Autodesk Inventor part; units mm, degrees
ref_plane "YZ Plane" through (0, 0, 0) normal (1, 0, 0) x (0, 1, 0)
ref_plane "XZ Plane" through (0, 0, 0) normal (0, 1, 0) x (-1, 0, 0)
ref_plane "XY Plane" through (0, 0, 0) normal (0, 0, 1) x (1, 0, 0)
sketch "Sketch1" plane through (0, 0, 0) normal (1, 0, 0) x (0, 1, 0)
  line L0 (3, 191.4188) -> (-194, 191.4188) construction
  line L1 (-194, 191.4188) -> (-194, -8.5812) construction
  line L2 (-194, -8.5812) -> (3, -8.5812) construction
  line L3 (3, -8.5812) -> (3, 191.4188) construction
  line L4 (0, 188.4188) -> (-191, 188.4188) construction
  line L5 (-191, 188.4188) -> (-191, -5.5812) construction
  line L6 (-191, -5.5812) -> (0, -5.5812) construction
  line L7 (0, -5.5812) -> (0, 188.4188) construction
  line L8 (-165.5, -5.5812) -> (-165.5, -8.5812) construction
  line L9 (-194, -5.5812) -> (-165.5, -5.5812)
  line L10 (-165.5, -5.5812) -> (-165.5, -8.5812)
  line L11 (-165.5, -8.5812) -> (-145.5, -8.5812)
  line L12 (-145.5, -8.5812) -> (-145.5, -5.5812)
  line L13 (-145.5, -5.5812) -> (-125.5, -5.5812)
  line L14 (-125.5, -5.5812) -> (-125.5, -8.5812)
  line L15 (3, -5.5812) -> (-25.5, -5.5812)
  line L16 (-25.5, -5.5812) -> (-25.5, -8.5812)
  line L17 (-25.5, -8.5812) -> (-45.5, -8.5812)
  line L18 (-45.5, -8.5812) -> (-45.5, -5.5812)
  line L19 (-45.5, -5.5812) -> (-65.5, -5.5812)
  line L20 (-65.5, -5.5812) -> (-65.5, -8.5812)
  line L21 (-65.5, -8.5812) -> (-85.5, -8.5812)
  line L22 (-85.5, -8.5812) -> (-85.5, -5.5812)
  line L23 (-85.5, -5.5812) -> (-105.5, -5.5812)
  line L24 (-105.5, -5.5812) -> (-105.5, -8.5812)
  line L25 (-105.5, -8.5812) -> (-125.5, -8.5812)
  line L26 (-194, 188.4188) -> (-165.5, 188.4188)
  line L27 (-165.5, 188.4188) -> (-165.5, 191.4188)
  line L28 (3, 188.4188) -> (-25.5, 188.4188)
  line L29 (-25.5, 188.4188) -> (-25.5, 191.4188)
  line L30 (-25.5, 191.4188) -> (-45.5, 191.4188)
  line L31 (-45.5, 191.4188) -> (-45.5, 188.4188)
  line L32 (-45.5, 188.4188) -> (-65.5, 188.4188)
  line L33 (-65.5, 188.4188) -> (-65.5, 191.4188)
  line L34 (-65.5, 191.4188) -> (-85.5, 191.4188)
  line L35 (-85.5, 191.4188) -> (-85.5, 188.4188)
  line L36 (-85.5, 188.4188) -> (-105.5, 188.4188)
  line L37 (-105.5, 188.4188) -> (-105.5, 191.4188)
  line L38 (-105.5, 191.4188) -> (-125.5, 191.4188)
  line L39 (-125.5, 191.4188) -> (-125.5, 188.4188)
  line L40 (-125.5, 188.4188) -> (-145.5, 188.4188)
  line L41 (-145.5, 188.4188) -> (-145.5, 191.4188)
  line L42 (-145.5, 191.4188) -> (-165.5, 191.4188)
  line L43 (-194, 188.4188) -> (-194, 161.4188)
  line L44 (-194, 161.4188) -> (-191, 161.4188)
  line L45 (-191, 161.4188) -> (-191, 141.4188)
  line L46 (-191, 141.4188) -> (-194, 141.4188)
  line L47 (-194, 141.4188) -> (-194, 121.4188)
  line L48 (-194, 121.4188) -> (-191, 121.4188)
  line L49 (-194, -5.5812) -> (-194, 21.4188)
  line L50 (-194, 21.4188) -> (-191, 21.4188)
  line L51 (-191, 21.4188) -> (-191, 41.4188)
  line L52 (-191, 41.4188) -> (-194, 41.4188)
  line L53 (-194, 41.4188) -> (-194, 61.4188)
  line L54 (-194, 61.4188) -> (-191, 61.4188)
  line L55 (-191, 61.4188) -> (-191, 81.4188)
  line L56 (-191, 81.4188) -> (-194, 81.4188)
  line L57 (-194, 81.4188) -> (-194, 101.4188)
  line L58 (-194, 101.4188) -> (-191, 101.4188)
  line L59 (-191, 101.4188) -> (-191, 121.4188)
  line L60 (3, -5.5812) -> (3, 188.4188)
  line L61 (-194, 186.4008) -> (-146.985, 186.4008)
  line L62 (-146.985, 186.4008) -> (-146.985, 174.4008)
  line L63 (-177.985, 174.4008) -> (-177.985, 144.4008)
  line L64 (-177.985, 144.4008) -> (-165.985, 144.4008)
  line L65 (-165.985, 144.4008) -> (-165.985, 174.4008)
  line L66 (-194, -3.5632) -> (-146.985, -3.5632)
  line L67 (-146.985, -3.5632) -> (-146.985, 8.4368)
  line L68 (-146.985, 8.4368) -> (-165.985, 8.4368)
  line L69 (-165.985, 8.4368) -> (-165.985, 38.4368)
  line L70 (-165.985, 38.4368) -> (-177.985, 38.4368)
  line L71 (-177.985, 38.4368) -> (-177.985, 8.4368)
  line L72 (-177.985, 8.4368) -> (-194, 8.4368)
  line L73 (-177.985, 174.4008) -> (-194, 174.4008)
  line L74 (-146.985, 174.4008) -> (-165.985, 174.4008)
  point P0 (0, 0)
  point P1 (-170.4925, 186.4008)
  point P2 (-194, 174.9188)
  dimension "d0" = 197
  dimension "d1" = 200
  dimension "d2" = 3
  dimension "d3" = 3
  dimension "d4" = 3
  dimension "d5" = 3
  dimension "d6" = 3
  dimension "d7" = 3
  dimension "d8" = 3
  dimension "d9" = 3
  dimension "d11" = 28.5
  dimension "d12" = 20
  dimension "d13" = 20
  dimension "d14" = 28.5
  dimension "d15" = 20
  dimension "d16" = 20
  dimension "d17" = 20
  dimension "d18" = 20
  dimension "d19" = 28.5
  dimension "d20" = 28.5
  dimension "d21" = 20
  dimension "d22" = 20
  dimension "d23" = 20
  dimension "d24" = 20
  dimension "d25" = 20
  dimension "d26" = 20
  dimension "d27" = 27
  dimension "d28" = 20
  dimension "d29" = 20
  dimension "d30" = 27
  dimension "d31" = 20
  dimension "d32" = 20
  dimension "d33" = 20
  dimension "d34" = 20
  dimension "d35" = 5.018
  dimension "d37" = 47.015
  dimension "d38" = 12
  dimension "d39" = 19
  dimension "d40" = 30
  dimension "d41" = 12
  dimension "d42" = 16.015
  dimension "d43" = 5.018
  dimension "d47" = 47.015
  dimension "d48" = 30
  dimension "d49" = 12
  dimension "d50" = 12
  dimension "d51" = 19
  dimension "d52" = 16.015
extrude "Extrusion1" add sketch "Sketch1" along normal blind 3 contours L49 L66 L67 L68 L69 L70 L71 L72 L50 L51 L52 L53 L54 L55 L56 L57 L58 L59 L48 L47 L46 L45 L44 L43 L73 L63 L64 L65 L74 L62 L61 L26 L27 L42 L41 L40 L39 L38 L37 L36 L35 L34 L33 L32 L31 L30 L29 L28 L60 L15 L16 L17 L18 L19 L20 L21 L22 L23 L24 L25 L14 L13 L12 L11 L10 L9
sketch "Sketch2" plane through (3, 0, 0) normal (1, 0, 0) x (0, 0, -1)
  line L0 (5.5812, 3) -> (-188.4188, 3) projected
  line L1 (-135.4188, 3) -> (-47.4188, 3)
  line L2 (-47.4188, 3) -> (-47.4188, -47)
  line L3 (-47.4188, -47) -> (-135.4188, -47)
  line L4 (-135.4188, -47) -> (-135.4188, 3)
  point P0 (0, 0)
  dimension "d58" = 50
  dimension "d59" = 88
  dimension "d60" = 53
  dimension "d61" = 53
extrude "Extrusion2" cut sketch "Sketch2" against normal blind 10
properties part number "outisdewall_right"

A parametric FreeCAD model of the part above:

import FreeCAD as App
import Part
import Sketcher
from FreeCAD import Vector
Q = App.Units.Quantity

doc = App.newDocument("Part")
body = doc.addObject("PartDesign::Body", "Body")

sketch1 = doc.addObject("Sketcher::SketchObject", "Sketch")
body.addObject(sketch1)
sketch1.AttachmentSupport = (doc.YZ_Plane, [""])
sketch1.MapMode = "FlatFace"
sketch1.addGeometry([
    Part.LineSegment(Vector(-194, -3.6, 0), Vector(-194, -5.6, 0)),
    Part.LineSegment(Vector(-194, -5.6, 0), Vector(-165.5, -5.6, 0)),
    Part.LineSegment(Vector(-165.5, -5.6, 0), Vector(-165.5, -8.6, 0)),
    Part.LineSegment(Vector(-165.5, -8.6, 0), Vector(-145.5, -8.6, 0)),
    Part.LineSegment(Vector(-145.5, -8.6, 0), Vector(-145.5, -5.6, 0)),
    Part.LineSegment(Vector(-145.5, -5.6, 0), Vector(-125.5, -5.6, 0)),
    Part.LineSegment(Vector(-125.5, -5.6, 0), Vector(-125.5, -8.6, 0)),
    Part.LineSegment(Vector(-125.5, -8.6, 0), Vector(-105.5, -8.6, 0)),
    Part.LineSegment(Vector(-105.5, -8.6, 0), Vector(-105.5, -5.6, 0)),
    Part.LineSegment(Vector(-105.5, -5.6, 0), Vector(-85.5, -5.6, 0)),
    Part.LineSegment(Vector(-85.5, -5.6, 0), Vector(-85.5, -8.6, 0)),
    Part.LineSegment(Vector(-85.5, -8.6, 0), Vector(-65.5, -8.6, 0)),
    Part.LineSegment(Vector(-65.5, -8.6, 0), Vector(-65.5, -5.6, 0)),
    Part.LineSegment(Vector(-65.5, -5.6, 0), Vector(-45.5, -5.6, 0)),
    Part.LineSegment(Vector(-45.5, -5.6, 0), Vector(-45.5, -8.6, 0)),
    Part.LineSegment(Vector(-45.5, -8.6, 0), Vector(-25.5, -8.6, 0)),
    Part.LineSegment(Vector(-25.5, -8.6, 0), Vector(-25.5, -5.6, 0)),
    Part.LineSegment(Vector(-25.5, -5.6, 0), Vector(3, -5.6, 0)),
    Part.LineSegment(Vector(3, -5.6, 0), Vector(3, 188.4, 0)),
    Part.LineSegment(Vector(3, 188.4, 0), Vector(-25.5, 188.4, 0)),
    Part.LineSegment(Vector(-25.5, 188.4, 0), Vector(-25.5, 191.4, 0)),
    Part.LineSegment(Vector(-25.5, 191.4, 0), Vector(-45.5, 191.4, 0)),
    Part.LineSegment(Vector(-45.5, 191.4, 0), Vector(-45.5, 188.4, 0)),
    Part.LineSegment(Vector(-45.5, 188.4, 0), Vector(-65.5, 188.4, 0)),
    Part.LineSegment(Vector(-65.5, 188.4, 0), Vector(-65.5, 191.4, 0)),
    Part.LineSegment(Vector(-65.5, 191.4, 0), Vector(-85.5, 191.4, 0)),
    Part.LineSegment(Vector(-85.5, 191.4, 0), Vector(-85.5, 188.4, 0)),
    Part.LineSegment(Vector(-85.5, 188.4, 0), Vector(-105.5, 188.4, 0)),
    Part.LineSegment(Vector(-105.5, 188.4, 0), Vector(-105.5, 191.4, 0)),
    Part.LineSegment(Vector(-105.5, 191.4, 0), Vector(-125.5, 191.4, 0)),
    Part.LineSegment(Vector(-125.5, 191.4, 0), Vector(-125.5, 188.4, 0)),
    Part.LineSegment(Vector(-125.5, 188.4, 0), Vector(-145.5, 188.4, 0)),
    Part.LineSegment(Vector(-145.5, 188.4, 0), Vector(-145.5, 191.4, 0)),
    Part.LineSegment(Vector(-145.5, 191.4, 0), Vector(-165.5, 191.4, 0)),
    Part.LineSegment(Vector(-165.5, 191.4, 0), Vector(-165.5, 188.4, 0)),
    Part.LineSegment(Vector(-165.5, 188.4, 0), Vector(-194, 188.4, 0)),
    Part.LineSegment(Vector(-194, 188.4, 0), Vector(-194, 186.4, 0)),
    Part.LineSegment(Vector(-194, 186.4, 0), Vector(-147, 186.4, 0)),
    Part.LineSegment(Vector(-147, 186.4, 0), Vector(-147, 174.4, 0)),
    Part.LineSegment(Vector(-147, 174.4, 0), Vector(-166, 174.4, 0)),
    Part.LineSegment(Vector(-166, 174.4, 0), Vector(-166, 144.4, 0)),
    Part.LineSegment(Vector(-166, 144.4, 0), Vector(-178, 144.4, 0)),
    Part.LineSegment(Vector(-178, 144.4, 0), Vector(-178, 174.4, 0)),
    Part.LineSegment(Vector(-178, 174.4, 0), Vector(-194, 174.4, 0)),
    Part.LineSegment(Vector(-194, 174.4, 0), Vector(-194, 161.4, 0)),
    Part.LineSegment(Vector(-194, 161.4, 0), Vector(-191, 161.4, 0)),
    Part.LineSegment(Vector(-191, 161.4, 0), Vector(-191, 141.4, 0)),
    Part.LineSegment(Vector(-191, 141.4, 0), Vector(-194, 141.4, 0)),
    Part.LineSegment(Vector(-194, 141.4, 0), Vector(-194, 121.4, 0)),
    Part.LineSegment(Vector(-194, 121.4, 0), Vector(-191, 121.4, 0)),
    Part.LineSegment(Vector(-191, 121.4, 0), Vector(-191, 101.4, 0)),
    Part.LineSegment(Vector(-191, 101.4, 0), Vector(-194, 101.4, 0)),
    Part.LineSegment(Vector(-194, 101.4, 0), Vector(-194, 81.4, 0)),
    Part.LineSegment(Vector(-194, 81.4, 0), Vector(-191, 81.4, 0)),
    Part.LineSegment(Vector(-191, 81.4, 0), Vector(-191, 61.4, 0)),
    Part.LineSegment(Vector(-191, 61.4, 0), Vector(-194, 61.4, 0)),
    Part.LineSegment(Vector(-194, 61.4, 0), Vector(-194, 41.4, 0)),
    Part.LineSegment(Vector(-194, 41.4, 0), Vector(-191, 41.4, 0)),
    Part.LineSegment(Vector(-191, 41.4, 0), Vector(-191, 21.4, 0)),
    Part.LineSegment(Vector(-191, 21.4, 0), Vector(-194, 21.4, 0)),
    Part.LineSegment(Vector(-194, 21.4, 0), Vector(-194, 8.4, 0)),
    Part.LineSegment(Vector(-194, 8.4, 0), Vector(-178, 8.4, 0)),
    Part.LineSegment(Vector(-178, 8.4, 0), Vector(-178, 38.4, 0)),
    Part.LineSegment(Vector(-178, 38.4, 0), Vector(-166, 38.4, 0)),
    Part.LineSegment(Vector(-166, 38.4, 0), Vector(-166, 8.4, 0)),
    Part.LineSegment(Vector(-166, 8.4, 0), Vector(-147, 8.4, 0)),
    Part.LineSegment(Vector(-147, 8.4, 0), Vector(-147, -3.6, 0)),
    Part.LineSegment(Vector(-147, -3.6, 0), Vector(-194, -3.6, 0)),
], False)
sketch1.addConstraint([
    Sketcher.Constraint("Coincident", 0, 2, 1, 1),
    Sketcher.Constraint("Coincident", 1, 2, 2, 1),
    Sketcher.Constraint("Coincident", 2, 2, 3, 1),
    Sketcher.Constraint("Coincident", 3, 2, 4, 1),
    Sketcher.Constraint("Coincident", 4, 2, 5, 1),
    Sketcher.Constraint("Coincident", 5, 2, 6, 1),
    Sketcher.Constraint("Coincident", 6, 2, 7, 1),
    Sketcher.Constraint("Coincident", 7, 2, 8, 1),
    Sketcher.Constraint("Coincident", 8, 2, 9, 1),
    Sketcher.Constraint("Coincident", 9, 2, 10, 1),
    Sketcher.Constraint("Coincident", 10, 2, 11, 1),
    Sketcher.Constraint("Coincident", 11, 2, 12, 1),
    Sketcher.Constraint("Coincident", 12, 2, 13, 1),
    Sketcher.Constraint("Coincident", 13, 2, 14, 1),
    Sketcher.Constraint("Coincident", 14, 2, 15, 1),
    Sketcher.Constraint("Coincident", 15, 2, 16, 1),
    Sketcher.Constraint("Coincident", 16, 2, 17, 1),
    Sketcher.Constraint("Coincident", 17, 2, 18, 1),
    Sketcher.Constraint("Coincident", 18, 2, 19, 1),
    Sketcher.Constraint("Coincident", 19, 2, 20, 1),
    Sketcher.Constraint("Coincident", 20, 2, 21, 1),
    Sketcher.Constraint("Coincident", 21, 2, 22, 1),
    Sketcher.Constraint("Coincident", 22, 2, 23, 1),
    Sketcher.Constraint("Coincident", 23, 2, 24, 1),
    Sketcher.Constraint("Coincident", 24, 2, 25, 1),
    Sketcher.Constraint("Coincident", 25, 2, 26, 1),
    Sketcher.Constraint("Coincident", 26, 2, 27, 1),
    Sketcher.Constraint("Coincident", 27, 2, 28, 1),
    Sketcher.Constraint("Coincident", 28, 2, 29, 1),
    Sketcher.Constraint("Coincident", 29, 2, 30, 1),
    Sketcher.Constraint("Coincident", 30, 2, 31, 1),
    Sketcher.Constraint("Coincident", 31, 2, 32, 1),
    Sketcher.Constraint("Coincident", 32, 2, 33, 1),
    Sketcher.Constraint("Coincident", 33, 2, 34, 1),
    Sketcher.Constraint("Coincident", 34, 2, 35, 1),
    Sketcher.Constraint("Coincident", 35, 2, 36, 1),
    Sketcher.Constraint("Coincident", 36, 2, 37, 1),
    Sketcher.Constraint("Coincident", 37, 2, 38, 1),
    Sketcher.Constraint("Coincident", 38, 2, 39, 1),
    Sketcher.Constraint("Coincident", 39, 2, 40, 1),
    Sketcher.Constraint("Coincident", 40, 2, 41, 1),
    Sketcher.Constraint("Coincident", 41, 2, 42, 1),
    Sketcher.Constraint("Coincident", 42, 2, 43, 1),
    Sketcher.Constraint("Coincident", 43, 2, 44, 1),
    Sketcher.Constraint("Coincident", 44, 2, 45, 1),
    Sketcher.Constraint("Coincident", 45, 2, 46, 1),
    Sketcher.Constraint("Coincident", 46, 2, 47, 1),
    Sketcher.Constraint("Coincident", 47, 2, 48, 1),
    Sketcher.Constraint("Coincident", 48, 2, 49, 1),
    Sketcher.Constraint("Coincident", 49, 2, 50, 1),
    Sketcher.Constraint("Coincident", 50, 2, 51, 1),
    Sketcher.Constraint("Coincident", 51, 2, 52, 1),
    Sketcher.Constraint("Coincident", 52, 2, 53, 1),
    Sketcher.Constraint("Coincident", 53, 2, 54, 1),
    Sketcher.Constraint("Coincident", 54, 2, 55, 1),
    Sketcher.Constraint("Coincident", 55, 2, 56, 1),
    Sketcher.Constraint("Coincident", 56, 2, 57, 1),
    Sketcher.Constraint("Coincident", 57, 2, 58, 1),
    Sketcher.Constraint("Coincident", 58, 2, 59, 1),
    Sketcher.Constraint("Coincident", 59, 2, 60, 1),
    Sketcher.Constraint("Coincident", 60, 2, 61, 1),
    Sketcher.Constraint("Coincident", 61, 2, 62, 1),
    Sketcher.Constraint("Coincident", 62, 2, 63, 1),
    Sketcher.Constraint("Coincident", 63, 2, 64, 1),
    Sketcher.Constraint("Coincident", 64, 2, 65, 1),
    Sketcher.Constraint("Coincident", 65, 2, 66, 1),
    Sketcher.Constraint("Coincident", 66, 2, 67, 1),
    Sketcher.Constraint("Coincident", 67, 2, 0, 1),
    Sketcher.Constraint("Vertical", 0),
    Sketcher.Constraint("Horizontal", 1),
    Sketcher.Constraint("Vertical", 2),
    Sketcher.Constraint("Horizontal", 3),
    Sketcher.Constraint("Vertical", 4),
    Sketcher.Constraint("Horizontal", 5),
    Sketcher.Constraint("Vertical", 6),
    Sketcher.Constraint("Horizontal", 7),
    Sketcher.Constraint("Vertical", 8),
    Sketcher.Constraint("Horizontal", 9),
    Sketcher.Constraint("Vertical", 10),
    Sketcher.Constraint("Horizontal", 11),
    Sketcher.Constraint("Vertical", 12),
    Sketcher.Constraint("Horizontal", 13),
    Sketcher.Constraint("Vertical", 14),
    Sketcher.Constraint("Horizontal", 15),
    Sketcher.Constraint("Vertical", 16),
    Sketcher.Constraint("Horizontal", 17),
    Sketcher.Constraint("Vertical", 18),
    Sketcher.Constraint("Horizontal", 19),
    Sketcher.Constraint("Vertical", 20),
    Sketcher.Constraint("Horizontal", 21),
    Sketcher.Constraint("Vertical", 22),
    Sketcher.Constraint("Horizontal", 23),
    Sketcher.Constraint("Vertical", 24),
    Sketcher.Constraint("Horizontal", 25),
    Sketcher.Constraint("Vertical", 26),
    Sketcher.Constraint("Horizontal", 27),
    Sketcher.Constraint("Vertical", 28),
    Sketcher.Constraint("Horizontal", 29),
    Sketcher.Constraint("Vertical", 30),
    Sketcher.Constraint("Horizontal", 31),
    Sketcher.Constraint("Vertical", 32),
    Sketcher.Constraint("Horizontal", 33),
    Sketcher.Constraint("Vertical", 34),
    Sketcher.Constraint("Horizontal", 35),
    Sketcher.Constraint("Vertical", 36),
    Sketcher.Constraint("Horizontal", 37),
    Sketcher.Constraint("Vertical", 38),
    Sketcher.Constraint("Horizontal", 39),
    Sketcher.Constraint("Vertical", 40),
    Sketcher.Constraint("Horizontal", 41),
    Sketcher.Constraint("Vertical", 42),
    Sketcher.Constraint("Horizontal", 43),
    Sketcher.Constraint("Vertical", 44),
    Sketcher.Constraint("Horizontal", 45),
    Sketcher.Constraint("Vertical", 46),
    Sketcher.Constraint("Horizontal", 47),
    Sketcher.Constraint("Vertical", 48),
    Sketcher.Constraint("Horizontal", 49),
    Sketcher.Constraint("Vertical", 50),
    Sketcher.Constraint("Horizontal", 51),
    Sketcher.Constraint("Vertical", 52),
    Sketcher.Constraint("Horizontal", 53),
    Sketcher.Constraint("Vertical", 54),
    Sketcher.Constraint("Horizontal", 55),
    Sketcher.Constraint("Vertical", 56),
    Sketcher.Constraint("Horizontal", 57),
    Sketcher.Constraint("Vertical", 58),
    Sketcher.Constraint("Horizontal", 59),
    Sketcher.Constraint("Vertical", 60),
    Sketcher.Constraint("Horizontal", 61),
    Sketcher.Constraint("Vertical", 62),
    Sketcher.Constraint("Horizontal", 63),
    Sketcher.Constraint("Vertical", 64),
    Sketcher.Constraint("Horizontal", 65),
    Sketcher.Constraint("Vertical", 66),
    Sketcher.Constraint("Horizontal", 67),
    Sketcher.Constraint("Horizontal", 1, 2, 4, 2),
    Sketcher.Constraint("Horizontal", 3, 2, 6, 2),
    Sketcher.Constraint("Horizontal", 5, 2, 8, 2),
    Sketcher.Constraint("Horizontal", 7, 2, 10, 2),
    Sketcher.Constraint("Horizontal", 9, 2, 12, 2),
    Sketcher.Constraint("Horizontal", 11, 2, 14, 2),
    Sketcher.Constraint("Horizontal", 13, 2, 16, 2),
    Sketcher.Constraint("Horizontal", 19, 2, 22, 2),
    Sketcher.Constraint("Horizontal", 21, 2, 24, 2),
    Sketcher.Constraint("Horizontal", 23, 2, 26, 2),
    Sketcher.Constraint("Horizontal", 25, 2, 28, 2),
    Sketcher.Constraint("Horizontal", 27, 2, 30, 2),
    Sketcher.Constraint("Horizontal", 29, 2, 32, 2),
    Sketcher.Constraint("Horizontal", 31, 2, 34, 2),
    Sketcher.Constraint("Horizontal", 39, 2, 42, 2),
    Sketcher.Constraint("Horizontal", 61, 2, 64, 2),
    Sketcher.Constraint("Vertical", 16, 2, 19, 2),
    Sketcher.Constraint("Vertical", 14, 2, 21, 2),
    Sketcher.Constraint("Vertical", 12, 2, 23, 2),
    Sketcher.Constraint("Vertical", 10, 2, 25, 2),
    Sketcher.Constraint("Vertical", 8, 2, 27, 2),
    Sketcher.Constraint("Vertical", 6, 2, 29, 2),
    Sketcher.Constraint("Vertical", 4, 2, 31, 2),
    Sketcher.Constraint("Vertical", 2, 2, 33, 2),
    Sketcher.Constraint("Vertical", 0, 2, 35, 2),
    Sketcher.Constraint("Vertical", 36, 2, 43, 2),
    Sketcher.Constraint("Vertical", 44, 2, 47, 2),
    Sketcher.Constraint("Vertical", 46, 2, 49, 2),
    Sketcher.Constraint("Vertical", 48, 2, 51, 2),
    Sketcher.Constraint("Vertical", 50, 2, 53, 2),
    Sketcher.Constraint("Vertical", 52, 2, 55, 2),
    Sketcher.Constraint("Vertical", 54, 2, 57, 2),
    Sketcher.Constraint("Vertical", 56, 2, 59, 2),
    Sketcher.Constraint("Vertical", 42, 2, 61, 2),
    Sketcher.Constraint("Vertical", 40, 2, 63, 2),
    Sketcher.Constraint("Vertical", 38, 2, 65, 2),
    Sketcher.Constraint("Equal", 3, 5),
    Sketcher.Constraint("Equal", 5, 7),
    Sketcher.Constraint("Equal", 7, 9),
    Sketcher.Constraint("Equal", 9, 11),
    Sketcher.Constraint("Equal", 11, 13),
    Sketcher.Constraint("Equal", 13, 15),
    Sketcher.Constraint("Equal", 1, 17),
    Sketcher.Constraint("Equal", 59, 2),
    Sketcher.Constraint("Equal", 16, 20),
    Sketcher.Constraint("Equal", 0, 36),
    Sketcher.Constraint("Equal", 63, 38),
    Sketcher.Constraint("Equal", 33, 46),
    Sketcher.Constraint("Equal", 46, 48),
    Sketcher.Constraint("Equal", 48, 50),
    Sketcher.Constraint("Equal", 50, 52),
    Sketcher.Constraint("Equal", 52, 54),
    Sketcher.Constraint("Equal", 54, 56),
    Sketcher.Constraint("Equal", 56, 58),
    Sketcher.Constraint("Equal", 44, 60),
    Sketcher.Constraint("Equal", 42, 62),
    Sketcher.Constraint("Equal", 38, 66),
    Sketcher.Constraint("DistanceX", 3, 1, 3, 2, Q("20 mm")),
    Sketcher.Constraint("DistanceX", 39, 2, 39, 1, Q("19 mm")),
    Sketcher.Constraint("DistanceX", 41, 2, 41, 1, Q("12 mm")),
    Sketcher.Constraint("DistanceX", 45, 1, 45, 2, Q("3 mm")),
    Sketcher.Constraint("DistanceY", 40, 2, 40, 1, Q("30 mm")),
    Sketcher.Constraint("DistanceX", 1, 1, 1, 2, Q("28.5 mm")),
    Sketcher.Constraint("DistanceX", -1, 1, 17, 2, Q("3 mm")),
    Sketcher.Constraint("DistanceX", 37, 1, 37, 2, Q("47.015 mm")),
    Sketcher.Constraint("DistanceY", 18, 1, 18, 2, Q("194 mm")),
    Sketcher.Constraint("DistanceY", 0, 2, 0, 1, Q("2.018 mm")),
    Sketcher.Constraint("DistanceY", 0, 2, -1, 1, Q("5.5812 mm")),
])
pad1 = doc.addObject("PartDesign::Pad", "Pad")
body.addObject(pad1)
pad1.Profile = sketch1
pad1.Length = 3

sketch2 = doc.addObject("Sketcher::SketchObject", "Sketch001")
body.addObject(sketch2)
sketch2.AttachmentSupport = (doc.YZ_Plane, [""])
sketch2.MapMode = "FlatFace"
sketch2.AttachmentOffset = App.Placement(Vector(0, 0, 3), App.Rotation())
sketch2.addGeometry([
    Part.LineSegment(Vector(-47, 47, 0), Vector(3, 47, 0)),
    Part.LineSegment(Vector(3, 47, 0), Vector(3, 135, 0)),
    Part.LineSegment(Vector(3, 135, 0), Vector(-47, 135, 0)),
    Part.LineSegment(Vector(-47, 135, 0), Vector(-47, 47, 0)),
], False)
sketch2.addConstraint([
    Sketcher.Constraint("Coincident", 0, 2, 1, 1),
    Sketcher.Constraint("Coincident", 1, 2, 2, 1),
    Sketcher.Constraint("Coincident", 2, 2, 3, 1),
    Sketcher.Constraint("Coincident", 3, 2, 0, 1),
    Sketcher.Constraint("Horizontal", 0),
    Sketcher.Constraint("Vertical", 1),
    Sketcher.Constraint("Horizontal", 2),
    Sketcher.Constraint("Vertical", 3),
    Sketcher.Constraint("DistanceX", 0, 1, 0, 2, Q("50 mm")),
    Sketcher.Constraint("DistanceY", 1, 1, 1, 2, Q("88 mm")),
    Sketcher.Constraint("DistanceX", -1, 1, 0, 2, Q("3 mm")),
    Sketcher.Constraint("DistanceY", -1, 1, 0, 2, Q("47.4188 mm")),
])
pocket1 = doc.addObject("PartDesign::Pocket", "Pocket")
body.addObject(pocket1)
pocket1.Profile = sketch2
pocket1.Length = 10

doc.recompute()
